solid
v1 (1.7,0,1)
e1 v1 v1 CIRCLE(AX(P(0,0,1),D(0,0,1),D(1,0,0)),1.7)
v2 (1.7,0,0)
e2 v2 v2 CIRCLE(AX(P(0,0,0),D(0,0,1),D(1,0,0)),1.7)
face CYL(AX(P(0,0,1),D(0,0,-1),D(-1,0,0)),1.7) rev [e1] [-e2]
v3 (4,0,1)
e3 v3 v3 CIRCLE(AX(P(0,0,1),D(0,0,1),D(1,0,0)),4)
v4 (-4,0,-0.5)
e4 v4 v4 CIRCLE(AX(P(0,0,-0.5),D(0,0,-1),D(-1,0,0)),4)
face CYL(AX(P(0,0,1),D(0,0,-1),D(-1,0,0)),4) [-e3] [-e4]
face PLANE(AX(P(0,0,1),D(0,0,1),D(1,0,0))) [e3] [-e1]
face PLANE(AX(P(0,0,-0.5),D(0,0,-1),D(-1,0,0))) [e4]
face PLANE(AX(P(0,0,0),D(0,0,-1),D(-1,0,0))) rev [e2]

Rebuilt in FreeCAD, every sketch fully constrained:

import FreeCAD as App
import Part
import Sketcher

V = App.Vector
Q = App.Units.Quantity

doc = App.newDocument("Part")
body = doc.addObject("PartDesign::Body", "Body")

# Sketch on XY plane
sketch1 = body.newObject("Sketcher::SketchObject", "Sketch")
sketch1.AttachmentSupport = (doc.getObject("XY_Plane"), [""])
sketch1.MapMode = "FlatFace"
sketch1.addGeometry([
    Part.Circle(V(0, 0, 0), V(0, 0, 1), 4),
    Part.Circle(V(0, 0, 0), V(0, 0, 1), 1.7),
], False)
sketch1.addConstraint([
    Sketcher.Constraint("Coincident", 0, 3, -1, 1),
    Sketcher.Constraint("Coincident", 1, 3, -1, 1),
    Sketcher.Constraint("Diameter", 0, Q("8 mm")),
    Sketcher.Constraint("Diameter", 1, Q("3.4 mm")),
])
pad1 = body.newObject("PartDesign::Pad", "Pad")
pad1.Profile = sketch1
pad1.Length = 1

# Sketch on XY plane
sketch2 = body.newObject("Sketcher::SketchObject", "Sketch001")
sketch2.AttachmentSupport = (doc.getObject("XY_Plane"), [""])
sketch2.MapMode = "FlatFace"
sketch2.AttachmentOffset = App.Placement(V(0, 0, -0.5), App.Rotation())
sketch2.addGeometry(Part.Circle(V(0, 0, 0), V(0, 0, 1), 4), False)
sketch2.addConstraint([
    Sketcher.Constraint("Coincident", 0, 3, -1, 1),
    Sketcher.Constraint("Diameter", 0, Q("8 mm")),
])
pad2 = body.newObject("PartDesign::Pad", "Pad001")
pad2.Profile = sketch2
pad2.Length = 0.5

doc.recompute()
